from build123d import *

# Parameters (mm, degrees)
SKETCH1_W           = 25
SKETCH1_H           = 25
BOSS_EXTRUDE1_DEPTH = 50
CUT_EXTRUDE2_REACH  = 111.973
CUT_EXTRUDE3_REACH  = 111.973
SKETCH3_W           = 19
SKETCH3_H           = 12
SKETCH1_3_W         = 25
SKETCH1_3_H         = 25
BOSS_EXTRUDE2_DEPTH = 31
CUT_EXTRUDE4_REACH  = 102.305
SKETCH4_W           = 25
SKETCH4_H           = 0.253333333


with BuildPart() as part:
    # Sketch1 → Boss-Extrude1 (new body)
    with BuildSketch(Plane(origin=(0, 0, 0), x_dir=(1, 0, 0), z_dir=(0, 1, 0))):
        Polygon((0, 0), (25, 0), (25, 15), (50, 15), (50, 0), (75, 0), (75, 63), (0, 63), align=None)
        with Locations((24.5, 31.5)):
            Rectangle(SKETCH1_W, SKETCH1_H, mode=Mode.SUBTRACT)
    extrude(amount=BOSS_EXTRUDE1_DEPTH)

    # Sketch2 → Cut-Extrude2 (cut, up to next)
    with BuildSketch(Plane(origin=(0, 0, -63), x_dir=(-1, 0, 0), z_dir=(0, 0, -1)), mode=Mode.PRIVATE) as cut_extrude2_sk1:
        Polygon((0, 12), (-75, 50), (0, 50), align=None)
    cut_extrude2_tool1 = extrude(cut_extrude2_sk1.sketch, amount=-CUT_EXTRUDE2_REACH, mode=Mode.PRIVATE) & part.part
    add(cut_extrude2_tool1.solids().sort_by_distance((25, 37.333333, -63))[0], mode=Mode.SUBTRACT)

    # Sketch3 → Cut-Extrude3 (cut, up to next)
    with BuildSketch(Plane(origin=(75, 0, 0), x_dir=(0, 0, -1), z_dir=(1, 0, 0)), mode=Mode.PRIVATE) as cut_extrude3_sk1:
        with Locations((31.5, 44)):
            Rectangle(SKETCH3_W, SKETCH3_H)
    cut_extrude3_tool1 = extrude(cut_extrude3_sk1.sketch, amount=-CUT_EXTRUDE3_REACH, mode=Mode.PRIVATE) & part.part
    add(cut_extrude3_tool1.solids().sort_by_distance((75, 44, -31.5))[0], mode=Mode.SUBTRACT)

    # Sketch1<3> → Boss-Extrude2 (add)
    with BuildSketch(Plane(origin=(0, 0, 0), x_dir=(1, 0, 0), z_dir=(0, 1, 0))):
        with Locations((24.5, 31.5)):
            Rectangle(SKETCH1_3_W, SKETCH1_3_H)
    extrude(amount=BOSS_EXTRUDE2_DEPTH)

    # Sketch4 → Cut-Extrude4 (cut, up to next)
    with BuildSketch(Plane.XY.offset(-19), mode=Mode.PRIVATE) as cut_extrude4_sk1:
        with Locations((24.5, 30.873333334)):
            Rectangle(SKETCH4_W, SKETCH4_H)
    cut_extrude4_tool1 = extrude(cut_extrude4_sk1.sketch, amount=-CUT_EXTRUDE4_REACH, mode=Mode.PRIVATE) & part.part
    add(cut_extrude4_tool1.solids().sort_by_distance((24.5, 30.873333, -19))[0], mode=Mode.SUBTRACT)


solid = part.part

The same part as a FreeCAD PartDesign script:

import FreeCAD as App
import Part
import Sketcher
from FreeCAD import Vector
Q = App.Units.Quantity

doc = App.newDocument("Part")
body = doc.addObject("PartDesign::Body", "Body")

sketch1 = doc.addObject("Sketcher::SketchObject", "Sketch")
body.addObject(sketch1)
sketch1.AttachmentSupport = (doc.XZ_Plane, [""])
sketch1.MapMode = "FlatFace"
sketch1.addGeometry(Part.LineSegment(Vector(0, 0, 0), Vector(25, 0, 0)), False)
sketch1.addGeometry(Part.LineSegment(Vector(25, 0, 0), Vector(25, -15, 0)), False)
sketch1.addGeometry(Part.LineSegment(Vector(25, -15, 0), Vector(50, -15, 0)), False)
sketch1.addGeometry(Part.LineSegment(Vector(50, -15, 0), Vector(50, 0, 0)), False)
sketch1.addGeometry(Part.LineSegment(Vector(50, 0, 0), Vector(75, 0, 0)), False)
sketch1.addGeometry(Part.LineSegment(Vector(75, 0, 0), Vector(75, -63, 0)), False)
sketch1.addGeometry(Part.LineSegment(Vector(75, -63, 0), Vector(0, -63, 0)), False)
sketch1.addGeometry(Part.LineSegment(Vector(0, -63, 0), Vector(0, 0, 0)), False)
sketch1.addGeometry(Part.LineSegment(Vector(37, -19, 0), Vector(12, -19, 0)), False)
sketch1.addGeometry(Part.LineSegment(Vector(12, -19, 0), Vector(12, -44, 0)), False)
sketch1.addGeometry(Part.LineSegment(Vector(12, -44, 0), Vector(37, -44, 0)), False)
sketch1.addGeometry(Part.LineSegment(Vector(37, -44, 0), Vector(37, -19, 0)), False)
sketch1.addConstraint(Sketcher.Constraint("Coincident", 0, 2, 1, 1))
sketch1.addConstraint(Sketcher.Constraint("Coincident", 1, 2, 2, 1))
sketch1.addConstraint(Sketcher.Constraint("Coincident", 2, 2, 3, 1))
sketch1.addConstraint(Sketcher.Constraint("Coincident", 3, 2, 4, 1))
sketch1.addConstraint(Sketcher.Constraint("Coincident", 4, 2, 5, 1))
sketch1.addConstraint(Sketcher.Constraint("Coincident", 5, 2, 6, 1))
sketch1.addConstraint(Sketcher.Constraint("Coincident", 6, 2, 7, 1))
sketch1.addConstraint(Sketcher.Constraint("Coincident", 7, 2, 0, 1))
sketch1.addConstraint(Sketcher.Constraint("Coincident", 8, 2, 9, 1))
sketch1.addConstraint(Sketcher.Constraint("Coincident", 9, 2, 10, 1))
sketch1.addConstraint(Sketcher.Constraint("Coincident", 10, 2, 11, 1))
sketch1.addConstraint(Sketcher.Constraint("Coincident", 11, 2, 8, 1))
sketch1.addConstraint(Sketcher.Constraint("Horizontal", 0))
sketch1.addConstraint(Sketcher.Constraint("Vertical", 1))
sketch1.addConstraint(Sketcher.Constraint("Horizontal", 2))
sketch1.addConstraint(Sketcher.Constraint("Vertical", 3))
sketch1.addConstraint(Sketcher.Constraint("Horizontal", 4))
sketch1.addConstraint(Sketcher.Constraint("Vertical", 5))
sketch1.addConstraint(Sketcher.Constraint("Horizontal", 6))
sketch1.addConstraint(Sketcher.Constraint("Vertical", 7))
sketch1.addConstraint(Sketcher.Constraint("Horizontal", 8))
sketch1.addConstraint(Sketcher.Constraint("Vertical", 9))
sketch1.addConstraint(Sketcher.Constraint("Horizontal", 10))
sketch1.addConstraint(Sketcher.Constraint("Vertical", 11))
sketch1.addConstraint(Sketcher.Constraint("Coincident", 7, 2, -1, 1))
sketch1.addConstraint(Sketcher.Constraint("PointOnObject", 3, 2, -1))
sketch1.addConstraint(Sketcher.Constraint("Equal", 0, 2))
sketch1.addConstraint(Sketcher.Constraint("Equal", 2, 4))
sketch1.addConstraint(Sketcher.Constraint("Equal", 4, 8))
sketch1.addConstraint(Sketcher.Constraint("Equal", 10, 9))
sketch1.addConstraint(Sketcher.Constraint("DistanceX", 0, 1, 0, 2, Q("25 mm")))
sketch1.addConstraint(Sketcher.Constraint("DistanceY", 1, 2, 1, 1, Q("15 mm")))
sketch1.addConstraint(Sketcher.Constraint("DistanceY", 5, 2, 5, 1, Q("63 mm")))
sketch1.addConstraint(Sketcher.Constraint("DistanceX", -1, 1, 8, 2, Q("12 mm")))
sketch1.addConstraint(Sketcher.Constraint("DistanceY", 8, 2, -1, 1, Q("19 mm")))
pad1 = doc.addObject("PartDesign::Pad", "Pad")
body.addObject(pad1)
pad1.Profile = sketch1
pad1.Length = 50
pad1.Reversed = True

sketch2 = doc.addObject("Sketcher::SketchObject", "Sketch001")
body.addObject(sketch2)
sketch2.AttachmentSupport = (doc.XY_Plane, [""])
sketch2.MapMode = "FlatFace"
sketch2.AttachmentOffset = App.Placement(Vector(0, 0, -63), App.Rotation())
sketch2.addGeometry(Part.LineSegment(Vector(75, 50, 0), Vector(0, 12, 0)), False)
sketch2.addGeometry(Part.LineSegment(Vector(0, 12, 0), Vector(0, 50, 0)), False)
sketch2.addGeometry(Part.LineSegment(Vector(0, 50, 0), Vector(75, 50, 0)), False)
sketch2.addConstraint(Sketcher.Constraint("Coincident", 0, 2, 1, 1))
sketch2.addConstraint(Sketcher.Constraint("Coincident", 1, 2, 2, 1))
sketch2.addConstraint(Sketcher.Constraint("Coincident", 2, 2, 0, 1))
sketch2.addConstraint(Sketcher.Constraint("Vertical", 1))
sketch2.addConstraint(Sketcher.Constraint("Horizontal", 2))
sketch2.addConstraint(Sketcher.Constraint("PointOnObject", 0, 2, -2))
sketch2.addConstraint(Sketcher.Constraint("DistanceX", 2, 1, 2, 2, Q("75 mm")))
sketch2.addConstraint(Sketcher.Constraint("DistanceY", 1, 1, 1, 2, Q("38 mm")))
sketch2.addConstraint(Sketcher.Constraint("DistanceY", -1, 1, 0, 2, Q("12 mm")))
pocket1 = doc.addObject("PartDesign::Pocket", "Pocket")
body.addObject(pocket1)
pocket1.Profile = sketch2
pocket1.Length = 63
pocket1.Reversed = True

sketch3 = doc.addObject("Sketcher::SketchObject", "Sketch002")
body.addObject(sketch3)
sketch3.AttachmentSupport = (doc.YZ_Plane, [""])
sketch3.MapMode = "FlatFace"
sketch3.AttachmentOffset = App.Placement(Vector(0, 0, 75), App.Rotation())
sketch3.addGeometry(Part.LineSegment(Vector(50, -22, 0), Vector(38, -22, 0)), False)
sketch3.addGeometry(Part.LineSegment(Vector(38, -22, 0), Vector(38, -41, 0)), False)
sketch3.addGeometry(Part.LineSegment(Vector(38, -41, 0), Vector(50, -41, 0)), False)
sketch3.addGeometry(Part.LineSegment(Vector(50, -41, 0), Vector(50, -22, 0)), False)
sketch3.addConstraint(Sketcher.Constraint("Coincident", 0, 2, 1, 1))
sketch3.addConstraint(Sketcher.Constraint("Coincident", 1, 2, 2, 1))
sketch3.addConstraint(Sketcher.Constraint("Coincident", 2, 2, 3, 1))
sketch3.addConstraint(Sketcher.Constraint("Coincident", 3, 2, 0, 1))
sketch3.addConstraint(Sketcher.Constraint("Horizontal", 0))
sketch3.addConstraint(Sketcher.Constraint("Vertical", 1))
sketch3.addConstraint(Sketcher.Constraint("Horizontal", 2))
sketch3.addConstraint(Sketcher.Constraint("Vertical", 3))
sketch3.addConstraint(Sketcher.Constraint("DistanceX", 0, 2, 0, 1, Q("12 mm")))
sketch3.addConstraint(Sketcher.Constraint("DistanceY", 1, 2, 1, 1, Q("19 mm")))
sketch3.addConstraint(Sketcher.Constraint("DistanceX", -1, 1, 0, 2, Q("38 mm")))
sketch3.addConstraint(Sketcher.Constraint("DistanceY", 0, 2, -1, 1, Q("22 mm")))
pocket2 = doc.addObject("PartDesign::Pocket", "Pocket001")
body.addObject(pocket2)
pocket2.Profile = sketch3
pocket2.Length = 23.684211

sketch4 = doc.addObject("Sketcher::SketchObject", "Sketch003")
body.addObject(sketch4)
sketch4.AttachmentSupport = (doc.XZ_Plane, [""])
sketch4.MapMode = "FlatFace"
sketch4.addGeometry(Part.LineSegment(Vector(12, -44, 0), Vector(12, -19, 0)), False)
sketch4.addGeometry(Part.LineSegment(Vector(12, -19, 0), Vector(37, -19, 0)), False)
sketch4.addGeometry(Part.LineSegment(Vector(37, -19, 0), Vector(37, -44, 0)), False)
sketch4.addGeometry(Part.LineSegment(Vector(37, -44, 0), Vector(12, -44, 0)), False)
sketch4.addConstraint(Sketcher.Constraint("Coincident", 0, 2, 1, 1))
sketch4.addConstraint(Sketcher.Constraint("Coincident", 1, 2, 2, 1))
sketch4.addConstraint(Sketcher.Constraint("Coincident", 2, 2, 3, 1))
sketch4.addConstraint(Sketcher.Constraint("Coincident", 3, 2, 0, 1))
sketch4.addConstraint(Sketcher.Constraint("Vertical", 0))
sketch4.addConstraint(Sketcher.Constraint("Horizontal", 1))
sketch4.addConstraint(Sketcher.Constraint("Vertical", 2))
sketch4.addConstraint(Sketcher.Constraint("Horizontal", 3))
sketch4.addConstraint(Sketcher.Constraint("Equal", 3, 0))
sketch4.addConstraint(Sketcher.Constraint("DistanceX", 1, 1, 1, 2, Q("25 mm")))
sketch4.addConstraint(Sketcher.Constraint("DistanceX", -1, 1, 0, 2, Q("12 mm")))
sketch4.addConstraint(Sketcher.Constraint("DistanceY", 0, 2, -1, 1, Q("19 mm")))
pad2 = doc.addObject("PartDesign::Pad", "Pad001")
body.addObject(pad2)
pad2.Profile = sketch4
pad2.Length = 31
pad2.Reversed = True

sketch5 = doc.addObject("Sketcher::SketchObject", "Sketch004")
body.addObject(sketch5)
sketch5.AttachmentSupport = (doc.XY_Plane, [""])
sketch5.MapMode = "FlatFace"
sketch5.AttachmentOffset = App.Placement(Vector(0, 0, -19), App.Rotation())
sketch5.addGeometry(Part.LineSegment(Vector(12, 31, 0), Vector(12, 30.75, 0)), False)
sketch5.addGeometry(Part.LineSegment(Vector(12, 30.75, 0), Vector(37, 30.75, 0)), False)
sketch5.addGeometry(Part.LineSegment(Vector(37, 30.75, 0), Vector(37, 31, 0)), False)
sketch5.addGeometry(Part.LineSegment(Vector(37, 31, 0), Vector(12, 31, 0)), False)
sketch5.addConstraint(Sketcher.Constraint("Coincident", 0, 2, 1, 1))
sketch5.addConstraint(Sketcher.Constraint("Coincident", 1, 2, 2, 1))
sketch5.addConstraint(Sketcher.Constraint("Coincident", 2, 2, 3, 1))
sketch5.addConstraint(Sketcher.Constraint("Coincident", 3, 2, 0, 1))
sketch5.addConstraint(Sketcher.Constraint("Vertical", 0))
sketch5.addConstraint(Sketcher.Constraint("Horizontal", 1))
sketch5.addConstraint(Sketcher.Constraint("Vertical", 2))
sketch5.addConstraint(Sketcher.Constraint("Horizontal", 3))
sketch5.addConstraint(Sketcher.Constraint("DistanceX", 1, 1, 1, 2, Q("25 mm")))
sketch5.addConstraint(Sketcher.Constraint("DistanceX", -1, 1, 0, 2, Q("12 mm")))
sketch5.addConstraint(Sketcher.Constraint("DistanceY", -1, 1, 2, 2, Q("31 mm")))
sketch5.addConstraint(Sketcher.Constraint("DistanceY", 0, 2, 0, 1, Q("0.253333 mm")))
pocket3 = doc.addObject("PartDesign::Pocket", "Pocket002")
body.addObject(pocket3)
pocket3.Profile = sketch5
pocket3.Type = "UpToFirst"

doc.recompute()
